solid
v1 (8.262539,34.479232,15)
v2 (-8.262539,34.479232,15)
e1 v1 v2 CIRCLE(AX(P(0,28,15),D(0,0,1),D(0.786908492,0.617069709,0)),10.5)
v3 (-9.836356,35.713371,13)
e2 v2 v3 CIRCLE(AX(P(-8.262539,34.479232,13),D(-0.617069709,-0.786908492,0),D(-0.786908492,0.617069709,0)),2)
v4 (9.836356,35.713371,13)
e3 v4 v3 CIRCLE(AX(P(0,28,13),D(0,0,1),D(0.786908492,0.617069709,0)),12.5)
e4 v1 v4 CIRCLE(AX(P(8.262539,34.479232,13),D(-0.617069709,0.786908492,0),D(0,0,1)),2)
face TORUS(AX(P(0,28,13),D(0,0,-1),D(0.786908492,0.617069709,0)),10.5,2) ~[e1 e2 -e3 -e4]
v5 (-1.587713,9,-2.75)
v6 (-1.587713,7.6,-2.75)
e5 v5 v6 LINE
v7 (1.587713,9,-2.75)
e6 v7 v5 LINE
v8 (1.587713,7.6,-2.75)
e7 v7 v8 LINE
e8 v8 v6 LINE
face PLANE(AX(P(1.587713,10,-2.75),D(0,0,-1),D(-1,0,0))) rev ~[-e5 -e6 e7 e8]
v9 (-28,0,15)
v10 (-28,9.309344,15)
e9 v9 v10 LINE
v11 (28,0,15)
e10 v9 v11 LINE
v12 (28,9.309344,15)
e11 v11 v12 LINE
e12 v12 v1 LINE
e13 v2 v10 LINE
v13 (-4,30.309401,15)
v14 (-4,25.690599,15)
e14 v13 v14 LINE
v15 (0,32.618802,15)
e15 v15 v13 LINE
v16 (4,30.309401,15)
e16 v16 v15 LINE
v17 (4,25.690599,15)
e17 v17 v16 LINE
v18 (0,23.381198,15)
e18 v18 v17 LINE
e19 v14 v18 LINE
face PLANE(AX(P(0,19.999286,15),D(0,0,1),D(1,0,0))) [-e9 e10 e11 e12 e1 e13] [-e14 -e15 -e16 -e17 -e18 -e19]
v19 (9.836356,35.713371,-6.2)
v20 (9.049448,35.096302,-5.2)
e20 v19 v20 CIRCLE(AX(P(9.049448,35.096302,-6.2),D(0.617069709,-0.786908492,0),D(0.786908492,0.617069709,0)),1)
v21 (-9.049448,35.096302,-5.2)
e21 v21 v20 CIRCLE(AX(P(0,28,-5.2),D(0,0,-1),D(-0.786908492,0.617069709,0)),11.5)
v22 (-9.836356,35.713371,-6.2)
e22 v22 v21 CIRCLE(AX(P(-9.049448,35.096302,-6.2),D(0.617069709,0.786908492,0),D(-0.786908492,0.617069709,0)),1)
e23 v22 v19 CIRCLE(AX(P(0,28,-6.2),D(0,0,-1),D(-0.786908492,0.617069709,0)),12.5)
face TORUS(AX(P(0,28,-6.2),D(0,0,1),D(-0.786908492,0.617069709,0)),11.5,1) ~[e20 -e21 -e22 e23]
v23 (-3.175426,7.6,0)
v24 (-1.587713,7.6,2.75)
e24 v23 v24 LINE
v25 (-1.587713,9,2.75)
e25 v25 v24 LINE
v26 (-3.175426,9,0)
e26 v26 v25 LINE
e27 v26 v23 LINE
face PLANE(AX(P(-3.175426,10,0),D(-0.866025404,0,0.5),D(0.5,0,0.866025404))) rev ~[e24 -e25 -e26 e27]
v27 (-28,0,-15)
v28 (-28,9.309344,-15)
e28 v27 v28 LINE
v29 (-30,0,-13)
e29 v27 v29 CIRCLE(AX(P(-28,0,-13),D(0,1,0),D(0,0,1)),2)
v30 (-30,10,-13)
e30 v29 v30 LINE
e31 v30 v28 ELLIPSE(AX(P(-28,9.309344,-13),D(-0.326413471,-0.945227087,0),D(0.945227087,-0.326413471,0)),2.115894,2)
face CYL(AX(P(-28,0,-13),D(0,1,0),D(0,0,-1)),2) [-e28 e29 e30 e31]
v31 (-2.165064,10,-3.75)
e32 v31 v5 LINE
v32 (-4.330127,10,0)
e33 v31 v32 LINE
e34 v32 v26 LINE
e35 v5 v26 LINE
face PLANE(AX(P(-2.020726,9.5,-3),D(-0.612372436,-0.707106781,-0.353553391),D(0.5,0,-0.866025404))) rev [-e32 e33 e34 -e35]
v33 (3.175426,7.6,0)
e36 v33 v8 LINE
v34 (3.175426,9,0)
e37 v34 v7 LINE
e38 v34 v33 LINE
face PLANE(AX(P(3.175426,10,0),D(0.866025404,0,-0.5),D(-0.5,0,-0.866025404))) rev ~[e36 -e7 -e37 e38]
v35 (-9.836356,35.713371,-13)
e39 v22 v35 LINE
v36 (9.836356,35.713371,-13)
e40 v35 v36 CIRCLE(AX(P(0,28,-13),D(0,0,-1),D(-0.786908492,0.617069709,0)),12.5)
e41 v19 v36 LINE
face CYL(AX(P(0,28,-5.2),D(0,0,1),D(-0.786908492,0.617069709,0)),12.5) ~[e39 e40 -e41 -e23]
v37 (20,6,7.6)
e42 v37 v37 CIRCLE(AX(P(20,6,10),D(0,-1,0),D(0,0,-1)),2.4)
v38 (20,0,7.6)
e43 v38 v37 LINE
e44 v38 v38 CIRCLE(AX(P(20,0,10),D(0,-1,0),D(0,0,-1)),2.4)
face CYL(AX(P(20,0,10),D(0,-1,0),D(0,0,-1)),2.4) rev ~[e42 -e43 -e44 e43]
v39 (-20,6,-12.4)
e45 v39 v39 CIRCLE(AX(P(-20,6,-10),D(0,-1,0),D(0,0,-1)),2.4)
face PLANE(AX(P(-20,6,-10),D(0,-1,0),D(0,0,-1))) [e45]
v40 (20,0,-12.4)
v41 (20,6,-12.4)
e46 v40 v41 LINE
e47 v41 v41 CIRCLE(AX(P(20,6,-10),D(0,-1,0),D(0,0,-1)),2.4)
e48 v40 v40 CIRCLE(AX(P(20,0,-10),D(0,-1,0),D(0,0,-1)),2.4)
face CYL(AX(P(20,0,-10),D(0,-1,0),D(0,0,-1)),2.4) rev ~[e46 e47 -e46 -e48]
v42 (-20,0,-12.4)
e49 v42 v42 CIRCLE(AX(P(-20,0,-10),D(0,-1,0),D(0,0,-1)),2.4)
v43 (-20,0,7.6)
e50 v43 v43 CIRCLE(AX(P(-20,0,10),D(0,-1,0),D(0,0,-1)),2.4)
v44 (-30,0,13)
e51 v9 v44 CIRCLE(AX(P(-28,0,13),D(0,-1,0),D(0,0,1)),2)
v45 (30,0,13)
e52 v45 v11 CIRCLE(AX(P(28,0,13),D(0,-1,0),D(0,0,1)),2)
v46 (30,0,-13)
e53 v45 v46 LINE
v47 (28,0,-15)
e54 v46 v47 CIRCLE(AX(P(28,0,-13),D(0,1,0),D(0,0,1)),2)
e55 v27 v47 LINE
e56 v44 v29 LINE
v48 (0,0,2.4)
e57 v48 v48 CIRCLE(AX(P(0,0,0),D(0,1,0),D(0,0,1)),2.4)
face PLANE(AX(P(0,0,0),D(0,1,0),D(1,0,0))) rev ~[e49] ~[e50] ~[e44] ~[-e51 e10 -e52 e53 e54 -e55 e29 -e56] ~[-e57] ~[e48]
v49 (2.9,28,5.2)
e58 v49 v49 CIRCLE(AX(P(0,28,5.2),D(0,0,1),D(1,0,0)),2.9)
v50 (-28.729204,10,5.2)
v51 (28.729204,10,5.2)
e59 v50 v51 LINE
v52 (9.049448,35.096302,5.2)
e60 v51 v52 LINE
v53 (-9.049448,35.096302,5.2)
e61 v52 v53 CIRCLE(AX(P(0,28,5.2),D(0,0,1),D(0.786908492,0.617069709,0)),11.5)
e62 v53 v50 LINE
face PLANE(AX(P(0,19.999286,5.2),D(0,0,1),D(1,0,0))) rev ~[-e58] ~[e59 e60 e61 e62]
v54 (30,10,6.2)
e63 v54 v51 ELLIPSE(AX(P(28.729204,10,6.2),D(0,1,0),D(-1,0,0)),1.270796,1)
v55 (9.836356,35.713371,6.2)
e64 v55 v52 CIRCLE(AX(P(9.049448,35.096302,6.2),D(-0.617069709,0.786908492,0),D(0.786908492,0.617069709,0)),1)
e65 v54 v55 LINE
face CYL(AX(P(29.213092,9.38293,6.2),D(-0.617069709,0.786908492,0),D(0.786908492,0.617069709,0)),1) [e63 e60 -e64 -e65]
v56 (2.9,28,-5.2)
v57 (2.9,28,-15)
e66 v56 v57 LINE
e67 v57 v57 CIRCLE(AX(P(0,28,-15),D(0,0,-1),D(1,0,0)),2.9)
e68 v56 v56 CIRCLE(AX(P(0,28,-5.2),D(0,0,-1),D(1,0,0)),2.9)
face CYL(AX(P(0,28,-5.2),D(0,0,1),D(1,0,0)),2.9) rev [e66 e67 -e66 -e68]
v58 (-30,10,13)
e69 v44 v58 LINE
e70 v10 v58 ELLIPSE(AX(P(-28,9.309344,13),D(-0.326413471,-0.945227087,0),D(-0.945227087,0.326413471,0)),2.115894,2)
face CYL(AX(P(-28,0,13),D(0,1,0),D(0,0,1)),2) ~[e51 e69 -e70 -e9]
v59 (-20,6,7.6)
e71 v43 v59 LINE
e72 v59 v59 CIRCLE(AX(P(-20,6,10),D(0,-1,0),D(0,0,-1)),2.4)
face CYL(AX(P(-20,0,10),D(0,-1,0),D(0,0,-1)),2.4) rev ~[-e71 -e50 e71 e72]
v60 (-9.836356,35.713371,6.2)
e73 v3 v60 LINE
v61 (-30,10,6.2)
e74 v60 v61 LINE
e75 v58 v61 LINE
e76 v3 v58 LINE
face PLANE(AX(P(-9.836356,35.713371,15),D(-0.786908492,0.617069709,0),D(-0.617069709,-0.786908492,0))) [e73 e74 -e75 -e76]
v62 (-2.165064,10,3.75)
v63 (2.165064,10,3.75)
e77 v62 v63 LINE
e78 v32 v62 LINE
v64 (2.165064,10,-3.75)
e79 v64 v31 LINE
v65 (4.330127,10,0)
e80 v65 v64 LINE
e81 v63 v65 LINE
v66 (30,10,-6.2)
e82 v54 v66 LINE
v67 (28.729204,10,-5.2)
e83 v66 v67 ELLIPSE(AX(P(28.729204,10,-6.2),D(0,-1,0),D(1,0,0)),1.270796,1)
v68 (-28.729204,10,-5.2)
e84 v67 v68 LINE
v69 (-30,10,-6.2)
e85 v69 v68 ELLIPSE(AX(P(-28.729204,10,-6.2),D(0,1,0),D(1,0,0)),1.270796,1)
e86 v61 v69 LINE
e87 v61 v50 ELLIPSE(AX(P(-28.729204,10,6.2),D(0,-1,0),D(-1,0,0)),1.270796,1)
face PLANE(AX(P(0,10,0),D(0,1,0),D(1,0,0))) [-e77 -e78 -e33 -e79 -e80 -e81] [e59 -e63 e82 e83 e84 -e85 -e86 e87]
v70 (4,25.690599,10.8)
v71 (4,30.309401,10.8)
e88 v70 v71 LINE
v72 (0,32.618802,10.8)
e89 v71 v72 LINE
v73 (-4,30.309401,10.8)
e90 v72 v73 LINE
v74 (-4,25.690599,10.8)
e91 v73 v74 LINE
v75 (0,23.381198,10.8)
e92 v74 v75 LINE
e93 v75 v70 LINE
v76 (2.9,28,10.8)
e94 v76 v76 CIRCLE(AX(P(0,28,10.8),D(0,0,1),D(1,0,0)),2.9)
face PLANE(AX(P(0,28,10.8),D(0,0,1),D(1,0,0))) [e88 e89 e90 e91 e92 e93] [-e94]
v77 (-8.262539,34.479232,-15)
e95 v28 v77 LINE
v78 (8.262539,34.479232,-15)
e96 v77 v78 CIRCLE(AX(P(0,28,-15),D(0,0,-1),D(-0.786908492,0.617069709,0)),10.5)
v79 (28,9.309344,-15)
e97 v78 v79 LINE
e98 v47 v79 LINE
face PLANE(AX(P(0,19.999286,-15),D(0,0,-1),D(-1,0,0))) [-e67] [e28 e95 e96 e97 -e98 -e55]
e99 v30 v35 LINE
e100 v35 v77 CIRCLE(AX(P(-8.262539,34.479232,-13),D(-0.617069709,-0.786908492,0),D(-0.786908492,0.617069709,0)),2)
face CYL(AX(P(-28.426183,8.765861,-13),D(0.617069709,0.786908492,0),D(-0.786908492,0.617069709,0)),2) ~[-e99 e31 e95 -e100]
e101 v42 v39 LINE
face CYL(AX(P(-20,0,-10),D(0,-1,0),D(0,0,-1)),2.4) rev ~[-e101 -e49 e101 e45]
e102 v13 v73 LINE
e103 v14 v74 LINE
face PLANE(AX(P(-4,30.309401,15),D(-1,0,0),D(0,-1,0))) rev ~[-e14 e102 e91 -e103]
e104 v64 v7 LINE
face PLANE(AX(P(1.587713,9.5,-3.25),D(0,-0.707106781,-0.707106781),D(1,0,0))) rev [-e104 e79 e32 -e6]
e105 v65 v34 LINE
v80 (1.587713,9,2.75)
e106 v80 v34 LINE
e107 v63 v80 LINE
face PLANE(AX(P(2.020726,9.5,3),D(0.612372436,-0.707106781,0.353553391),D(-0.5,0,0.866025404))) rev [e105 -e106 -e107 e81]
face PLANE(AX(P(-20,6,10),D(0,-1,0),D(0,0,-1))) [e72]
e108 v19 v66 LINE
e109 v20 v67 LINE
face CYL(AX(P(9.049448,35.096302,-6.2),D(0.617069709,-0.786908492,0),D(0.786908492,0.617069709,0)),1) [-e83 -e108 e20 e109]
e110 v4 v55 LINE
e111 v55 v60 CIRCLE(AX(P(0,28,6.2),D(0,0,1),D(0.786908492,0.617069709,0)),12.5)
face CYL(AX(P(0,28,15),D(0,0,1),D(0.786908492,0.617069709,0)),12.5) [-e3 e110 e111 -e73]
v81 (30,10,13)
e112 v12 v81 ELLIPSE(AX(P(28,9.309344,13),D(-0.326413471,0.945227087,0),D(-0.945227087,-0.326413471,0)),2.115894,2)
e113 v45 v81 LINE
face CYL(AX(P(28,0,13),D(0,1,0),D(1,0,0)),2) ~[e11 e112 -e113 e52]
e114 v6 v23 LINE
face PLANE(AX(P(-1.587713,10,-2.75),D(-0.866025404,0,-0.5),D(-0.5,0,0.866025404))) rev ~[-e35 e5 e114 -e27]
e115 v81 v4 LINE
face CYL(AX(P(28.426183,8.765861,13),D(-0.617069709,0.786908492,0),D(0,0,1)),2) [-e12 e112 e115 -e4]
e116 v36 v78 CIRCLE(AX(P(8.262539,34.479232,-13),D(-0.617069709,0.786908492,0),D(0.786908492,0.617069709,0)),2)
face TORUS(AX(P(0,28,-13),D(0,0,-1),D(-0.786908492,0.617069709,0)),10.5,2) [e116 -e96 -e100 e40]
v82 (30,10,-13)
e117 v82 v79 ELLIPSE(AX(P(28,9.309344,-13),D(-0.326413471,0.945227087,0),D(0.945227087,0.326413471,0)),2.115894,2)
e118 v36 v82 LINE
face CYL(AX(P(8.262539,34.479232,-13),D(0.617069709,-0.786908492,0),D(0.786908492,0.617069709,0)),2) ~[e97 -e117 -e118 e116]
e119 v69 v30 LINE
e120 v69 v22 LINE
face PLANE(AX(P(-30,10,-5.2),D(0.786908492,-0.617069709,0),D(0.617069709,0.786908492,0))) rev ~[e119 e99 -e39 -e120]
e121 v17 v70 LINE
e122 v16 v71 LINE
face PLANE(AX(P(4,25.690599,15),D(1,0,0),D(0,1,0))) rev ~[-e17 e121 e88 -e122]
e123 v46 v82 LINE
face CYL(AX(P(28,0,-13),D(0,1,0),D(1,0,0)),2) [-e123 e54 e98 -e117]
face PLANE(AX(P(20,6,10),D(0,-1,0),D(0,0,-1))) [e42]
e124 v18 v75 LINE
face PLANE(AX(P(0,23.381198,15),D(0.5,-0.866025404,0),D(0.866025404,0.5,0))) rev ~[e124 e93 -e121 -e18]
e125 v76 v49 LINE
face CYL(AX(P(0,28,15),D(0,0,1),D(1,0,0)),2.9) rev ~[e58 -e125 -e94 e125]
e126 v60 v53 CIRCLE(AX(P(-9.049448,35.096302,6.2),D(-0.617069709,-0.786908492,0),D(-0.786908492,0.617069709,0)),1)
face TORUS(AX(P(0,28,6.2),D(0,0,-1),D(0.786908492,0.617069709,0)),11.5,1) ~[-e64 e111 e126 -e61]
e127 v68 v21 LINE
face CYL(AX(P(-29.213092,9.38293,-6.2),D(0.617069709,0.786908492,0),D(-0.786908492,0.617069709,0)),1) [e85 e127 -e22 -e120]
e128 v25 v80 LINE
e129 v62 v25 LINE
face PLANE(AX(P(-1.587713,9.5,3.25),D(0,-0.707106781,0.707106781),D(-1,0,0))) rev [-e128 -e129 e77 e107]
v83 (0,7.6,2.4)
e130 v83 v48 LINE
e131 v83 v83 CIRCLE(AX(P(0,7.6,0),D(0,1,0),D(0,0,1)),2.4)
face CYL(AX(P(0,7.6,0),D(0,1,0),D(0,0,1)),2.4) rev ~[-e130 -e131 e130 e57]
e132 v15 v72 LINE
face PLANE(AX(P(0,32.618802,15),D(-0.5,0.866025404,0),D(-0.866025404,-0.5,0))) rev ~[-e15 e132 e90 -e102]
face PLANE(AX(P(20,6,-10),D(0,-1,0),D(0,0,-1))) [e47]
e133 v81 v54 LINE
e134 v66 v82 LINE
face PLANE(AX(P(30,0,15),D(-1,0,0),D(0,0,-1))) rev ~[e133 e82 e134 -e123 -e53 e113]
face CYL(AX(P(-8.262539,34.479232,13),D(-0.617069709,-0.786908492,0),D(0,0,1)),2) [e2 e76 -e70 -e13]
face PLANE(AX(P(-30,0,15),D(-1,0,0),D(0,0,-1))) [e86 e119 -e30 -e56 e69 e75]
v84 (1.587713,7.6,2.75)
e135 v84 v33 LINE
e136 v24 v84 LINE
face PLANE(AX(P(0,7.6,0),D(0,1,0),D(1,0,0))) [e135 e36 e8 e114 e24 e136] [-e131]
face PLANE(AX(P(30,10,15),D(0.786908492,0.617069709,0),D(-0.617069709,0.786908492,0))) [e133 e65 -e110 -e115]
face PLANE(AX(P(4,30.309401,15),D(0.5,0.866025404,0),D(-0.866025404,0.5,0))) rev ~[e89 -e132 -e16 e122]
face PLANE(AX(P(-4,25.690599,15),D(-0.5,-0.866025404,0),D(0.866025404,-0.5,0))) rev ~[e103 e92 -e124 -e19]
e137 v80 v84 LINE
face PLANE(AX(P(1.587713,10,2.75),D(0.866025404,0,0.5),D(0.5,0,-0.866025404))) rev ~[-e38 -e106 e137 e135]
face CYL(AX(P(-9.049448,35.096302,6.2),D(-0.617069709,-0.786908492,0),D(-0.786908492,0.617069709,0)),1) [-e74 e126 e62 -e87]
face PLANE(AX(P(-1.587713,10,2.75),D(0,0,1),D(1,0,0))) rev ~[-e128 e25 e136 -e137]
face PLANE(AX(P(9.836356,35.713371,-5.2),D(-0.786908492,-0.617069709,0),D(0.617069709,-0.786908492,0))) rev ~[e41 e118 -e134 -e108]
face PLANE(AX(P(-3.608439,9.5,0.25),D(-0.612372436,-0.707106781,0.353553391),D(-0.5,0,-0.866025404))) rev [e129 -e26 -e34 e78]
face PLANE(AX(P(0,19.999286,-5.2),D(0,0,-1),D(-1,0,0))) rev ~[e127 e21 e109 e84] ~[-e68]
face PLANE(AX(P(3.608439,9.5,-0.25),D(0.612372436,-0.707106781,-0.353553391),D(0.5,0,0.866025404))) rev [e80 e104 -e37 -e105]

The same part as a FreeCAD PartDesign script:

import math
import FreeCAD as App
import Part
import Sketcher

V = App.Vector
Q = App.Units.Quantity


def edges_at(feature, points):
    """Names of the edges that pass closest to the given points."""
    edges = feature.Shape.Edges
    near = lambda p: min(range(len(edges)), key=lambda i: edges[i].distToShape(Part.Vertex(*p))[0])
    return sorted({f"Edge{near(p) + 1}" for p in points})


def add_polygon(sketch, points):
    """Adds a closed chain of lines whose ends are joined by coincident constraints."""
    first, n = sketch.GeometryCount, len(points)
    for a, b in zip(points, points[1:] + points[:1]):
        sketch.addGeometry(Part.LineSegment(App.Vector(*a, 0), App.Vector(*b, 0)), False)
    for i in range(n):
        sketch.addConstraint(Sketcher.Constraint("Coincident", first + i, 2, first + (i + 1) % n, 1))

doc = App.newDocument("Part")
body = doc.addObject("PartDesign::Body", "Body")

# Sketch on XZ plane
sketch1 = body.newObject("Sketcher::SketchObject", "Sketch")
sketch1.AttachmentSupport = (doc.getObject("XZ_Plane"), [""])
sketch1.MapMode = "FlatFace"
add_polygon(sketch1, [(-30, -15), (-30, 15), (30, 15), (30, -15)])  # lines 0-3
sketch1.addConstraint(Sketcher.Constraint("Vertical", 0))
sketch1.addConstraint(Sketcher.Constraint("Horizontal", 1))
sketch1.addConstraint(Sketcher.Constraint("Vertical", 2))
sketch1.addConstraint(Sketcher.Constraint("Horizontal", 3))
sketch1.addConstraint(Sketcher.Constraint("Symmetric", 0, 2, 2, 2, -1, 1))
sketch1.addConstraint(Sketcher.Constraint("DistanceX", 1, 1, 1, 2, 60.0))
sketch1.addConstraint(Sketcher.Constraint("DistanceY", 0, 1, 0, 2, 30.0))
pad1 = body.newObject("PartDesign::Pad", "Pad")
pad1.Profile = sketch1
pad1.Length = 10
pad1.Reversed = True

# Sketch on XY plane
sketch2 = body.newObject("Sketcher::SketchObject", "Sketch001")
sketch2.AttachmentSupport = (doc.getObject("XY_Plane"), [""])
sketch2.MapMode = "FlatFace"
sketch2.AttachmentOffset = App.Placement(V(0, 0, 15), App.Rotation())
sketch2.addGeometry(Part.LineSegment(V(-9.8, 35.7, 0), V(-30, 10, 0)), False)
sketch2.addGeometry(Part.LineSegment(V(-30, 10, 0), V(30, 10, 0)), False)
sketch2.addGeometry(Part.LineSegment(V(30, 10, 0), V(9.8, 35.7, 0)), False)
sketch2.addGeometry(Part.ArcOfCircle(Part.Circle(V(0, 28, 0), V(0, 0, 1), 12.5), math.radians(38), math.radians(142)), False)
sketch2.addGeometry(Part.Circle(V(0, 28, 0), V(0, 0, 1), 2.9), False)
sketch2.addConstraint(Sketcher.Constraint("Coincident", 0, 2, 1, 1))
sketch2.addConstraint(Sketcher.Constraint("Coincident", 1, 2, 2, 1))
sketch2.addConstraint(Sketcher.Constraint("Tangent", 2, 2, 3, 1))
sketch2.addConstraint(Sketcher.Constraint("Tangent", 3, 2, 0, 1))
sketch2.addConstraint(Sketcher.Constraint("Horizontal", 1))
sketch2.addConstraint(Sketcher.Constraint("Coincident", 4, 3, 3, 3))
sketch2.addConstraint(Sketcher.Constraint("Symmetric", 2, 2, 3, 2, -2))
sketch2.addConstraint(Sketcher.Constraint("Diameter", 4, 5.8))
sketch2.addConstraint(Sketcher.Constraint("Radius", 3, 12.5))
sketch2.addConstraint(Sketcher.Constraint("DistanceX", 1, 1, 1, 2, 60.0))
sketch2.addConstraint(Sketcher.Constraint("DistanceY", -1, 1, 3, 3, 28.0))
sketch2.addConstraint(Sketcher.Constraint("DistanceY", -1, 1, 0, 2, 10.0))
pad2 = body.newObject("PartDesign::Pad", "Pad001")
pad2.Profile = sketch2
pad2.Length = 9.8
pad2.Reversed = True

# Sketch on XY plane
sketch3 = body.newObject("Sketcher::SketchObject", "Sketch002")
sketch3.AttachmentSupport = (doc.getObject("XY_Plane"), [""])
sketch3.MapMode = "FlatFace"
sketch3.AttachmentOffset = App.Placement(V(0, 0, -5.2), App.Rotation())
sketch3.addGeometry(Part.LineSegment(V(-30, 10, 0), V(-9.8, 35.7, 0)), False)
sketch3.addGeometry(Part.ArcOfCircle(Part.Circle(V(0, 28, 0), V(0, 0, 1), 12.5), math.radians(38), math.radians(142)), False)
sketch3.addGeometry(Part.LineSegment(V(9.8, 35.7, 0), V(30, 10, 0)), False)
sketch3.addGeometry(Part.LineSegment(V(30, 10, 0), V(-30, 10, 0)), False)
sketch3.addGeometry(Part.Circle(V(0, 28, 0), V(0, 0, 1), 2.9), False)
sketch3.addConstraint(Sketcher.Constraint("Tangent", 0, 2, 1, 2))
sketch3.addConstraint(Sketcher.Constraint("Tangent", 1, 1, 2, 1))
sketch3.addConstraint(Sketcher.Constraint("Coincident", 2, 2, 3, 1))
sketch3.addConstraint(Sketcher.Constraint("Coincident", 3, 2, 0, 1))
sketch3.addConstraint(Sketcher.Constraint("Horizontal", 3))
sketch3.addConstraint(Sketcher.Constraint("Coincident", 4, 3, 1, 3))
sketch3.addConstraint(Sketcher.Constraint("Symmetric", 0, 2, 1, 1, -2))
sketch3.addConstraint(Sketcher.Constraint("Diameter", 4, 5.8))
sketch3.addConstraint(Sketcher.Constraint("Radius", 1, 12.5))
sketch3.addConstraint(Sketcher.Constraint("DistanceX", 3, 2, 3, 1, 60.0))
sketch3.addConstraint(Sketcher.Constraint("DistanceY", -1, 1, 1, 3, 28.0))
sketch3.addConstraint(Sketcher.Constraint("DistanceY", -1, 1, 2, 2, 10.0))
pad3 = body.newObject("PartDesign::Pad", "Pad002")
pad3.Profile = sketch3
pad3.Length = 9.8
pad3.Reversed = True

# Sketch on XZ plane
sketch4 = body.newObject("Sketcher::SketchObject", "Sketch003")
sketch4.AttachmentSupport = (doc.getObject("XZ_Plane"), [""])
sketch4.MapMode = "FlatFace"
sketch4.addGeometry(Part.Circle(V(20, 10, 0), V(0, 0, 1), 2.4), False)
sketch4.addGeometry(Part.Circle(V(20, -10, 0), V(0, 0, 1), 2.4), False)
sketch4.addGeometry(Part.Circle(V(-20, -10, 0), V(0, 0, 1), 2.4), False)
sketch4.addGeometry(Part.Circle(V(-20, 10, 0), V(0, 0, 1), 2.4), False)
sketch4.addConstraint(Sketcher.Constraint("Equal", 0, 1))
sketch4.addConstraint(Sketcher.Constraint("Equal", 1, 2))
sketch4.addConstraint(Sketcher.Constraint("Equal", 2, 3))
sketch4.addConstraint(Sketcher.Constraint("Symmetric", 0, 3, 2, 3, -1, 1))
sketch4.addConstraint(Sketcher.Constraint("Symmetric", 1, 3, 3, 3, -1, 1))
sketch4.addConstraint(Sketcher.Constraint("Symmetric", 1, 3, 2, 3, -2))
sketch4.addConstraint(Sketcher.Constraint("Diameter", 0, 4.8))
sketch4.addConstraint(Sketcher.Constraint("DistanceX", -1, 1, 0, 3, 20.0))
sketch4.addConstraint(Sketcher.Constraint("DistanceY", -1, 1, 0, 3, 10.0))
pocket1 = body.newObject("PartDesign::Pocket", "Pocket")
pocket1.Profile = sketch4
pocket1.Length = 6

# Sketch on XY plane
sketch5 = body.newObject("Sketcher::SketchObject", "Sketch004")
sketch5.AttachmentSupport = (doc.getObject("XY_Plane"), [""])
sketch5.MapMode = "FlatFace"
sketch5.AttachmentOffset = App.Placement(V(0, 0, 15), App.Rotation())
add_polygon(sketch5, [(0, 32.6), (-4, 30.3), (-4, 25.7), (0, 23.4), (4, 25.7), (4, 30.3)])  # lines 0-5
sketch5.addConstraint(Sketcher.Constraint("Vertical", 1))
sketch5.addConstraint(Sketcher.Constraint("Vertical", 4))
sketch5.addConstraint(Sketcher.Constraint("Symmetric", 1, 2, 3, 2, -2))
sketch5.addConstraint(Sketcher.Constraint("PointOnObject", 2, 2, -2))
sketch5.addConstraint(Sketcher.Constraint("PointOnObject", 5, 2, -2))
sketch5.addConstraint(Sketcher.Constraint("Parallel", 0, 3))
sketch5.addConstraint(Sketcher.Constraint("Parallel", 2, 5))
sketch5.addConstraint(Sketcher.Constraint("Angle", 0, Q("-150 deg")))
sketch5.addConstraint(Sketcher.Constraint("DistanceX", 0, 2, -1, 1, 4.0))
sketch5.addConstraint(Sketcher.Constraint("DistanceY", -1, 1, 0, 2, 30.309401))
sketch5.addConstraint(Sketcher.Constraint("DistanceY", -1, 1, 1, 2, 25.690599))
pocket2 = body.newObject("PartDesign::Pocket", "Pocket001")
pocket2.Profile = sketch5
pocket2.Length = 4.2

# Sketch on XZ plane
sketch6 = body.newObject("Sketcher::SketchObject", "Sketch005")
sketch6.AttachmentSupport = (doc.getObject("XZ_Plane"), [""])
sketch6.MapMode = "FlatFace"
sketch6.AttachmentOffset = App.Placement(V(0, 0, -10), App.Rotation())
add_polygon(sketch6, [(3.2, 0), (1.6, -2.8), (-1.6, -2.8), (-3.2, 0), (-1.6, 2.8), (1.6, 2.8)])  # lines 0-5
sketch6.addConstraint(Sketcher.Constraint("Horizontal", 1))
sketch6.addConstraint(Sketcher.Constraint("Horizontal", 4))
sketch6.addConstraint(Sketcher.Constraint("Symmetric", 0, 2, 3, 2, -1, 1))
sketch6.addConstraint(Sketcher.Constraint("Symmetric", 2, 2, 5, 2, -1, 1))
sketch6.addConstraint(Sketcher.Constraint("PointOnObject", 2, 2, -1))
sketch6.addConstraint(Sketcher.Constraint("Parallel", 2, 5))
sketch6.addConstraint(Sketcher.Constraint("Vertical", 1, 2, 3, 2))
sketch6.addConstraint(Sketcher.Constraint("Angle", 0, Q("-120 deg")))
sketch6.addConstraint(Sketcher.Constraint("DistanceY", 1, 2, 3, 2, 5.5))
sketch6.addConstraint(Sketcher.Constraint("DistanceX", 1, 2, 1, 1, 3.175426))
pocket3 = body.newObject("PartDesign::Pocket", "Pocket002")
pocket3.Profile = sketch6
pocket3.Length = 2.4
pocket3.Reversed = True

# Sketch on XZ plane
sketch7 = body.newObject("Sketcher::SketchObject", "Sketch006")
sketch7.AttachmentSupport = (doc.getObject("XZ_Plane"), [""])
sketch7.MapMode = "FlatFace"
sketch7.AttachmentOffset = App.Placement(V(0, 0, -7.6), App.Rotation())
sketch7.addGeometry(Part.Circle(V(0, 0, 0), V(0, 0, 1), 2.4), False)
sketch7.addConstraint(Sketcher.Constraint("Coincident", 0, 3, -1, 1))
sketch7.addConstraint(Sketcher.Constraint("Diameter", 0, 4.8))
pocket4 = body.newObject("PartDesign::Pocket", "Pocket003")
pocket4.Profile = sketch7
pocket4.Type = "ThroughAll"
pocket4.Reversed = True
doc.recompute()

fillet = body.newObject("PartDesign::Fillet", "Fillet")
fillet.Base = (pocket4, edges_at(pocket4, [
    (-19.918, 22.857, 5.2),
    (0, 40.5, 5.2),
    (19.918, 22.857, 5.2),
    (0, 40.5, -5.2),
    (-19.918, 22.857, -5.2),
    (19.918, 22.857, -5.2),
]))
fillet.Radius = 1
doc.recompute()

fillet2 = body.newObject("PartDesign::Fillet", "Fillet001")
fillet2.Base = (fillet, edges_at(fillet, [
    (19.918, 22.857, 15),
    (0, 40.5, 15),
    (-19.918, 22.857, 15),
    (0, 40.5, -15),
    (19.918, 22.857, -15),
    (-19.918, 22.857, -15),
    (30, 5, 15),
    (-30, 5, 15),
    (-30, 5, -15),
    (30, 5, -15),
]))
fillet2.Radius = 2
doc.recompute()

chamfer = body.newObject("PartDesign::Chamfer", "Chamfer")
chamfer.Base = (fillet2, edges_at(fillet2, [
    (2.382, 10, 1.375),
    (2.382, 10, -1.375),
    (0, 10, -2.75),
    (-2.382, 10, -1.375),
    (-2.382, 10, 1.375),
    (0, 10, 2.75),
]))
chamfer.Size = 1

doc.recompute()
